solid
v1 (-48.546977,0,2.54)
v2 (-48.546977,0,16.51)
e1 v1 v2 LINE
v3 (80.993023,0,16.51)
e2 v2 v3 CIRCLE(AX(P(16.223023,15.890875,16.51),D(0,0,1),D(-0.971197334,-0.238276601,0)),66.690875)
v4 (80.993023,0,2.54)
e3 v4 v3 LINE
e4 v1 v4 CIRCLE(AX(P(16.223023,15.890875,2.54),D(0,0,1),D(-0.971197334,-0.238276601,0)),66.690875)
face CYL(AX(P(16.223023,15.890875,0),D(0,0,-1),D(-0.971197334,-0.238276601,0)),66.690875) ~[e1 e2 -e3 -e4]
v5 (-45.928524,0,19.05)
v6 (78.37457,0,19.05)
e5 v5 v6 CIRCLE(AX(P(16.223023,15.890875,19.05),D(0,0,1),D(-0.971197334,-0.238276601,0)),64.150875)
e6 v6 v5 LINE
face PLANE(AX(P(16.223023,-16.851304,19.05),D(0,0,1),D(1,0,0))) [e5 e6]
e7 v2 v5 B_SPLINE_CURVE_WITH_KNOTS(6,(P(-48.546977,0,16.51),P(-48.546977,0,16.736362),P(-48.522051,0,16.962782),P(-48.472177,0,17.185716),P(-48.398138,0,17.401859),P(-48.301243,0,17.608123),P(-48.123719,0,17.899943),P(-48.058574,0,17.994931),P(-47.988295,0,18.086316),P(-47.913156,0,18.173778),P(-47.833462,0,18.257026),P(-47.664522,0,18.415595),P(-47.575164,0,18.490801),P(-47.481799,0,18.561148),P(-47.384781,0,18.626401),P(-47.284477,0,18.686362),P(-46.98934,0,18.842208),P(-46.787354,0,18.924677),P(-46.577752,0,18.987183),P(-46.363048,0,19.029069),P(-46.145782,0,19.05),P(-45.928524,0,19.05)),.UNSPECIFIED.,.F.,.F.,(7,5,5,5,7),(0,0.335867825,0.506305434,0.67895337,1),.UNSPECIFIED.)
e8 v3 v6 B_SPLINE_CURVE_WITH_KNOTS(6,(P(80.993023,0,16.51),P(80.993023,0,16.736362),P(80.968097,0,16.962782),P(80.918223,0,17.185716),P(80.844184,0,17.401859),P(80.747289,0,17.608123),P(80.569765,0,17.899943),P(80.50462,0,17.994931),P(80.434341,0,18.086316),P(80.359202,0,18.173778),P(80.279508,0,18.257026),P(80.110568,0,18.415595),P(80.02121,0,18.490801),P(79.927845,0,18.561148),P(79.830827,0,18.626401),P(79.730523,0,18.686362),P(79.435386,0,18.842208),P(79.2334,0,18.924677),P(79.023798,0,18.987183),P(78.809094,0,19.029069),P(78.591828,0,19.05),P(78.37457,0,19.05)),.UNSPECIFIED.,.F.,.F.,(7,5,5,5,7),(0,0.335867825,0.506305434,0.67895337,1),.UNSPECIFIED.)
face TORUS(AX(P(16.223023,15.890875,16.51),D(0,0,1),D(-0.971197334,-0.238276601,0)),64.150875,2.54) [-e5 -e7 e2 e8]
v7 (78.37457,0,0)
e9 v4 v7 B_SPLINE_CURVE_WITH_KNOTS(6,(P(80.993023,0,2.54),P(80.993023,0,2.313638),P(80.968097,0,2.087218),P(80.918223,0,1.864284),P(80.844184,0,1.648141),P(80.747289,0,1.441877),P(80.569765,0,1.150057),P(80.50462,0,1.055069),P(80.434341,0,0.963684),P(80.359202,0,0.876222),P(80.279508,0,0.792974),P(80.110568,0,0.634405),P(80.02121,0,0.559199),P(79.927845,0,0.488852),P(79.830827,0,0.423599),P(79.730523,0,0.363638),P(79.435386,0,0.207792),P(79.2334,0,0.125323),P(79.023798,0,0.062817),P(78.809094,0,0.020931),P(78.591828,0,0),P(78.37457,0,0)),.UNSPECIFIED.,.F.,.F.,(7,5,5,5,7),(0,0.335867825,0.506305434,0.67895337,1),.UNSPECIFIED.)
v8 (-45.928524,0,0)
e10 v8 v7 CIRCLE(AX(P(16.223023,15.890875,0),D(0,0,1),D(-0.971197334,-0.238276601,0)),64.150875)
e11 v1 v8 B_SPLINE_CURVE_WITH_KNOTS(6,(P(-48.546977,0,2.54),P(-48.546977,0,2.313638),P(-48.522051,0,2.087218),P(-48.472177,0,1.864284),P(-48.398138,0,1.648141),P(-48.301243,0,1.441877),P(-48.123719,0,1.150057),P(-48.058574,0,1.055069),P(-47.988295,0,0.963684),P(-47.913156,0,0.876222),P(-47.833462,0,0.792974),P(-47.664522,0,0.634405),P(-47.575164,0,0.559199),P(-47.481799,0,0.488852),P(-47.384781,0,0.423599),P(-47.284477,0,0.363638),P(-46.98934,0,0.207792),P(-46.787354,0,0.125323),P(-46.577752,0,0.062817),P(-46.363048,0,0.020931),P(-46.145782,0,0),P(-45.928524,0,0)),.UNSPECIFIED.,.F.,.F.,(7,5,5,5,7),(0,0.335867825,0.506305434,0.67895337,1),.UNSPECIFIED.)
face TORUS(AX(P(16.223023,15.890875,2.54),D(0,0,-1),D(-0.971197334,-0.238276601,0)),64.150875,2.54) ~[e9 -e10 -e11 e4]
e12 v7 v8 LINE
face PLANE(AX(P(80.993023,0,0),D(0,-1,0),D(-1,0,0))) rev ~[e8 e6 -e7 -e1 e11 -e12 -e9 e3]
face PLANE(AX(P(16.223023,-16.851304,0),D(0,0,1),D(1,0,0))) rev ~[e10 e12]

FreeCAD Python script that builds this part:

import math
import FreeCAD as App
import Part
import Sketcher
from FreeCAD import Vector
Q = App.Units.Quantity


def edges_at(feature, points):
    """Names of the edges that pass closest to the given points."""
    edges = feature.Shape.Edges
    near = lambda p: min(range(len(edges)), key=lambda i: edges[i].distToShape(Part.Vertex(*p))[0])
    return sorted({f"Edge{near(p) + 1}" for p in points})

doc = App.newDocument("Part")
body = doc.addObject("PartDesign::Body", "Body")

sketch1 = doc.addObject("Sketcher::SketchObject", "Sketch")
body.addObject(sketch1)
sketch1.AttachmentSupport = (doc.XY_Plane, [""])
sketch1.MapMode = "FlatFace"
sketch1.addGeometry(Part.LineSegment(Vector(81, 0, 0), Vector(-49, 0, 0)), False)
sketch1.addGeometry(Part.ArcOfCircle(Part.Circle(Vector(16, 16, 0), Vector(0, 0, 1), 67), math.radians(-166), math.radians(-14)), False)
sketch1.addConstraint(Sketcher.Constraint("Coincident", 0, 1, 1, 2))
sketch1.addConstraint(Sketcher.Constraint("Coincident", 1, 1, 0, 2))
sketch1.addConstraint(Sketcher.Constraint("Horizontal", 0))
sketch1.addConstraint(Sketcher.Constraint("PointOnObject", 0, 1, -1))
sketch1.addConstraint(Sketcher.Constraint("DistanceX", 0, 2, 0, 1, Q("5.1 in")))
sketch1.addConstraint(Sketcher.Constraint("Radius", 1, 66.690875))
sketch1.addConstraint(Sketcher.Constraint("DistanceX", -1, 1, 1, 3, 16.223023))
pad1 = doc.addObject("PartDesign::Pad", "Pad")
body.addObject(pad1)
pad1.Profile = sketch1
pad1.Length = Q("0.75 in")
doc.recompute()

fillet = doc.addObject("PartDesign::Fillet", "Fillet")
body.addObject(fillet)
fillet.Base = (pad1, edges_at(pad1, [(16.223, -50.8, 19.05), (16.223, -50.8, 0)]))
fillet.Radius = Q("0.1 in")

doc.recompute()
